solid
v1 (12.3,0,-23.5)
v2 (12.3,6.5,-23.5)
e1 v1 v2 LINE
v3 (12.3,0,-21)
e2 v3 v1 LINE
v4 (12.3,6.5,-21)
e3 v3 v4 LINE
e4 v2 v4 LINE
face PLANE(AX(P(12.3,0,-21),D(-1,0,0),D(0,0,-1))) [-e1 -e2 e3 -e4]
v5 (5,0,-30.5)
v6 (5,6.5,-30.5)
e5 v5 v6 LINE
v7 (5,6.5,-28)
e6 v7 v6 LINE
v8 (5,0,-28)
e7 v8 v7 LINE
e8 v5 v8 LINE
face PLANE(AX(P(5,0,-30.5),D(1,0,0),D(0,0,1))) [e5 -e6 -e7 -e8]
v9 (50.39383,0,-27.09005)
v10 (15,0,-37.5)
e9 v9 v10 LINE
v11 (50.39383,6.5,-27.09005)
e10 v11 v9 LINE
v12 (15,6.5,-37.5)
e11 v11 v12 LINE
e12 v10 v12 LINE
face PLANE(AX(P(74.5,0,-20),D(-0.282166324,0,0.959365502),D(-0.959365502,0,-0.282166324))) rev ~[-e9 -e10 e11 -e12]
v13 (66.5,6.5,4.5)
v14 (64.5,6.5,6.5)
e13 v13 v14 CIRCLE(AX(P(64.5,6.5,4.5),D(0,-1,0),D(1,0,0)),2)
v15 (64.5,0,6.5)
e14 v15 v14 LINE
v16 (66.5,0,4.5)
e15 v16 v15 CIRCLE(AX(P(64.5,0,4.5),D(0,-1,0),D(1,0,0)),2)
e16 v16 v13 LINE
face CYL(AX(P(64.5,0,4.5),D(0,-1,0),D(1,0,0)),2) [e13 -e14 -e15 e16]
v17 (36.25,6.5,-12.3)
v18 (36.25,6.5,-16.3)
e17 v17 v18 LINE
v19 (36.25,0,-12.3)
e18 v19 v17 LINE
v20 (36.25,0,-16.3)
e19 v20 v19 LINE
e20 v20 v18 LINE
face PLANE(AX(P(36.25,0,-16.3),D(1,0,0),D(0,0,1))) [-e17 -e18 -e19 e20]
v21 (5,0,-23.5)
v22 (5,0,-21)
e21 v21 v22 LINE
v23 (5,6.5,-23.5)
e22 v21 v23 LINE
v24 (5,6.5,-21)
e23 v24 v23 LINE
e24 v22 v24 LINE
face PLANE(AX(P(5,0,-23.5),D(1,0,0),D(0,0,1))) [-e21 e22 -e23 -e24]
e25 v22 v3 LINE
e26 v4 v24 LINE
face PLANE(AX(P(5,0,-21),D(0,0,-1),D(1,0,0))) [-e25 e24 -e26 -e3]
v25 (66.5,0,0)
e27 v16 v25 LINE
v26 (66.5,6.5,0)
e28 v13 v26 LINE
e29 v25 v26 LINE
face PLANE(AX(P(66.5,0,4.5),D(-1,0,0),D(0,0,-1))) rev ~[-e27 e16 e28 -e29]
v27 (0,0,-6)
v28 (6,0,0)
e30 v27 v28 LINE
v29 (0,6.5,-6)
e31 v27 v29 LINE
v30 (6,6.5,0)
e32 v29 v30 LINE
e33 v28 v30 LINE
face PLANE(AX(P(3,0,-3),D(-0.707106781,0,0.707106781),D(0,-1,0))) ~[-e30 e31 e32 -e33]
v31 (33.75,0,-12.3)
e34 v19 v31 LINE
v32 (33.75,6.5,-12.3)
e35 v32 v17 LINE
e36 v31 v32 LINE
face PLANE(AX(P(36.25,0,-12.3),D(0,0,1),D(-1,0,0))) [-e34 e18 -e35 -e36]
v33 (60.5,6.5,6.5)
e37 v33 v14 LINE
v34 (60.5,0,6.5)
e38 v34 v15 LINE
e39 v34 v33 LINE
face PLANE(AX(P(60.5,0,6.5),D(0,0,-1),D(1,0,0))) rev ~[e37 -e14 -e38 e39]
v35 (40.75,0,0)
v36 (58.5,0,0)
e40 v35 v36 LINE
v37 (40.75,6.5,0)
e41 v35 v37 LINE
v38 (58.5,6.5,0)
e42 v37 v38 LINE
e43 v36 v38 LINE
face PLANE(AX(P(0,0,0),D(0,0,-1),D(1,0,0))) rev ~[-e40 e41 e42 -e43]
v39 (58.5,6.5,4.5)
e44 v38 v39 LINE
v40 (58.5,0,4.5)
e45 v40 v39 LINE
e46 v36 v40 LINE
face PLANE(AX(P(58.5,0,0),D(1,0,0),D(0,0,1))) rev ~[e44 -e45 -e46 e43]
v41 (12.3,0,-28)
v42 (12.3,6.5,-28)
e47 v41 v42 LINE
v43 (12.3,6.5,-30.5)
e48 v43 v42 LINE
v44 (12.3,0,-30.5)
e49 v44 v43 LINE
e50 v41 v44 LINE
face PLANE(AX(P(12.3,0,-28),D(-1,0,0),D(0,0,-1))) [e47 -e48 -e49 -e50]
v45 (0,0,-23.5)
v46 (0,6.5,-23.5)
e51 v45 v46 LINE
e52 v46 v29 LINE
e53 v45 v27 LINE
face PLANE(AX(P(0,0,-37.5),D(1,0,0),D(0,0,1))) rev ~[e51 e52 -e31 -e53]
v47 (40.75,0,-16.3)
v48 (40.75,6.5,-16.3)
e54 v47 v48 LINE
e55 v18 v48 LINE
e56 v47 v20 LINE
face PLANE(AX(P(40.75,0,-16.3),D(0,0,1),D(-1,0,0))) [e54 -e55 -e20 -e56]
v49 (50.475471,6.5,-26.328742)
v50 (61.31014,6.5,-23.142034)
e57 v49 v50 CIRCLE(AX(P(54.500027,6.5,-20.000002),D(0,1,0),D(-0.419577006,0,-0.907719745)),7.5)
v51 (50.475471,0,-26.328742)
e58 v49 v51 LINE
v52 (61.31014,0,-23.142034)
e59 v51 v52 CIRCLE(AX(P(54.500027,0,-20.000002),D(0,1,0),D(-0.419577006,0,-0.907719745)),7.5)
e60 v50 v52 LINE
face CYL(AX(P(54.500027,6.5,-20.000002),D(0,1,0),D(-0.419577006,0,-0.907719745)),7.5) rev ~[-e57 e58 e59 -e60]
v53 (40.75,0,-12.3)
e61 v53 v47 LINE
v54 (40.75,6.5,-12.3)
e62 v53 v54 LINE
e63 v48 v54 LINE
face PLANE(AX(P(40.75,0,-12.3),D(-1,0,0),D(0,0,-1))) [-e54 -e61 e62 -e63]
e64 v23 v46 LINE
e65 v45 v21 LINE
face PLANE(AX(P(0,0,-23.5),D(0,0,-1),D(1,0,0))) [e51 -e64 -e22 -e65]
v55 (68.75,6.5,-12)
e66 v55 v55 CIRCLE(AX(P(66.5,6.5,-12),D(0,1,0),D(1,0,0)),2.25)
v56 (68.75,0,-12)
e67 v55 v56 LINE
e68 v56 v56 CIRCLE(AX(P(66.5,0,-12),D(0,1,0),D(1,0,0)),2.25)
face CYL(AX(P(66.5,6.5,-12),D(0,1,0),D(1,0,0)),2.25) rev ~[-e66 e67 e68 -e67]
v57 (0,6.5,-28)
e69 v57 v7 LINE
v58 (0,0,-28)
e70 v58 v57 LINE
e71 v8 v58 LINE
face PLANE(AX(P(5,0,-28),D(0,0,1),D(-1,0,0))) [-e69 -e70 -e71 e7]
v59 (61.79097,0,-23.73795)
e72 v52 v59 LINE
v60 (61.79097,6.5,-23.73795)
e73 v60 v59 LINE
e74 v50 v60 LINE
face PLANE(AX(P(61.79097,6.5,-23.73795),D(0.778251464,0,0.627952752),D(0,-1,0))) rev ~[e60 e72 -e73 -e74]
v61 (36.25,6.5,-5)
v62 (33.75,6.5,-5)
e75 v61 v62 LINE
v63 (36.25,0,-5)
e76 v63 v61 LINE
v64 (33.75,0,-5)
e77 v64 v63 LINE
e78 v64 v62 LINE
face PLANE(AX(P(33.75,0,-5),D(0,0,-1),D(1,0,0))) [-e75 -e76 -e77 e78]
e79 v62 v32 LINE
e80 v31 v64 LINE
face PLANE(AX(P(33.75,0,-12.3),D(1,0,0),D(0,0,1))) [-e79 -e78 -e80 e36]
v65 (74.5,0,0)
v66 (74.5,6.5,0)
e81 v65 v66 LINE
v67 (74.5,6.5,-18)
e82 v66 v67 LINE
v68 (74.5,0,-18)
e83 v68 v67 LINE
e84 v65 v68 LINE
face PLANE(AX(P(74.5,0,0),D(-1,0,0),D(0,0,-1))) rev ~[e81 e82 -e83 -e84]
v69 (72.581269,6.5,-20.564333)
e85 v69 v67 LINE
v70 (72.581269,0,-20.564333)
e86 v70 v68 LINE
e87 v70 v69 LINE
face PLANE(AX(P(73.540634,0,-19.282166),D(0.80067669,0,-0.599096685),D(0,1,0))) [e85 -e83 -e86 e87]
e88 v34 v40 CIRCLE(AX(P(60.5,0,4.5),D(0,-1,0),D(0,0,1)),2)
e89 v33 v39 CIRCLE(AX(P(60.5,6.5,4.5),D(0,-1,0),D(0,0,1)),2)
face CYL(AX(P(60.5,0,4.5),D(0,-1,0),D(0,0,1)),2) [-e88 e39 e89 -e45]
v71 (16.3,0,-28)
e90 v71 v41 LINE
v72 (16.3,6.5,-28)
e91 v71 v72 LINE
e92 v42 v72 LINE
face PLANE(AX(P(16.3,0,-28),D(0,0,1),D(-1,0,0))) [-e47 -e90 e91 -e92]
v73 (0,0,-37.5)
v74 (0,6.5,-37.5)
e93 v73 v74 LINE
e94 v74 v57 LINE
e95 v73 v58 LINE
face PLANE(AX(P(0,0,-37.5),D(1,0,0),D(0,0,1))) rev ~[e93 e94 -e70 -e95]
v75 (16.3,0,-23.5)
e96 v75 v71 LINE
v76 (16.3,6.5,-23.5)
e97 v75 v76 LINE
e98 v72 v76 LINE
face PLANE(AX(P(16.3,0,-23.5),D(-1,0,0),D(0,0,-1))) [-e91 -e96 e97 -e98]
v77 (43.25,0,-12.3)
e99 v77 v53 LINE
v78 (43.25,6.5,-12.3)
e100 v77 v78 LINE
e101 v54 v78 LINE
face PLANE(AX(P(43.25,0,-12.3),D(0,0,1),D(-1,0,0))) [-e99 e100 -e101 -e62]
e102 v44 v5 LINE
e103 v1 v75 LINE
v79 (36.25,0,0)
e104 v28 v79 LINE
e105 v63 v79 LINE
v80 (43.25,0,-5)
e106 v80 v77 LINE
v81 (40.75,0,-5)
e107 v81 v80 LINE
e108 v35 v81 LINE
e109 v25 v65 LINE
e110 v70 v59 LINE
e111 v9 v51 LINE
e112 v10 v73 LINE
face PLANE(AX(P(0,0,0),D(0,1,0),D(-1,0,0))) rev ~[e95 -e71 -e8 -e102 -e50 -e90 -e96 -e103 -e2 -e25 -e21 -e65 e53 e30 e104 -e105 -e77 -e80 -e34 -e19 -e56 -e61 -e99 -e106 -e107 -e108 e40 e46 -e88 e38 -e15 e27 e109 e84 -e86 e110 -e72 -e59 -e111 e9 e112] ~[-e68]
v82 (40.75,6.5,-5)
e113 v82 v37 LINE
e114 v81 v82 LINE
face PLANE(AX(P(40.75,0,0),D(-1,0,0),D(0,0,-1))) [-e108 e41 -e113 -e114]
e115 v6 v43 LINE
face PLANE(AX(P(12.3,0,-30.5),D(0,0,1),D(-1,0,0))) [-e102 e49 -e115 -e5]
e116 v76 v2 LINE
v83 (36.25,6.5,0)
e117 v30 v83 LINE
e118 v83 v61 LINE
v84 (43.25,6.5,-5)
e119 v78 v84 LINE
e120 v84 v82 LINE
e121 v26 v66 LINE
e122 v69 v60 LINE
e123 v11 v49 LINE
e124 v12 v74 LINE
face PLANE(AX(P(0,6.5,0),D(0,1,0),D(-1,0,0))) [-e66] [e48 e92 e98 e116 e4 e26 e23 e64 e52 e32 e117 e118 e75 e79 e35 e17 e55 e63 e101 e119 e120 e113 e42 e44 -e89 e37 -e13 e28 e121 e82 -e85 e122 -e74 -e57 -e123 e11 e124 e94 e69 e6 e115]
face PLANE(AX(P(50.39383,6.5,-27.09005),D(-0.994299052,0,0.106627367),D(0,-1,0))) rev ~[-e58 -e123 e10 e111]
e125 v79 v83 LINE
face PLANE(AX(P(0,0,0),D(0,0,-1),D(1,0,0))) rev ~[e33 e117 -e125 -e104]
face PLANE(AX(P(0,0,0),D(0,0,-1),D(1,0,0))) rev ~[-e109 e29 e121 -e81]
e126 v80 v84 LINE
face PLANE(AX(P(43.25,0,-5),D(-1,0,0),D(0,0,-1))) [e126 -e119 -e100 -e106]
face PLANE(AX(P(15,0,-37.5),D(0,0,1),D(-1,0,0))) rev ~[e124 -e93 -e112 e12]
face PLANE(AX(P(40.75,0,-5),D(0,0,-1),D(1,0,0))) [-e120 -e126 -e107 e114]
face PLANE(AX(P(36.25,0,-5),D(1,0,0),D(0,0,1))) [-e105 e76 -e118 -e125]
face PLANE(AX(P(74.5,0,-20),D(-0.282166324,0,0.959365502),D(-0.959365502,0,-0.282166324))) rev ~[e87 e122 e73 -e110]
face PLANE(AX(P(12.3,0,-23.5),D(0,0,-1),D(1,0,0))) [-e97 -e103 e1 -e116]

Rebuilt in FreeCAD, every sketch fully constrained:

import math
import FreeCAD as App
import Part
import Sketcher

V = App.Vector
Q = App.Units.Quantity


def edges_at(feature, points):
    """Names of the edges that pass closest to the given points."""
    edges = feature.Shape.Edges
    near = lambda p: min(range(len(edges)), key=lambda i: edges[i].distToShape(Part.Vertex(*p))[0])
    return sorted({f"Edge{near(p) + 1}" for p in points})


def add_polygon(sketch, points):
    """Adds a closed chain of lines whose ends are joined by coincident constraints."""
    first, n = sketch.GeometryCount, len(points)
    for a, b in zip(points, points[1:] + points[:1]):
        sketch.addGeometry(Part.LineSegment(App.Vector(*a, 0), App.Vector(*b, 0)), False)
    for i in range(n):
        sketch.addConstraint(Sketcher.Constraint("Coincident", first + i, 2, first + (i + 1) % n, 1))

doc = App.newDocument("Part")
params = doc.addObject("Spreadsheet::Sheet", "Params")
for row, (alias, value) in enumerate([
    ("sketch1_width", "15 mm"),
    ("sketch1_height", "20 mm"),
    ("sketch1_width2", "74.5 mm"),
    ("sketch1_height2", "37.5 mm"),
    ("pad1_length", "6.5 mm"),
    ("sketch2_width", "5 mm"),
    ("sketch2_width2", "4 mm"),
    ("sketch2_width3", "7.3 mm"),
    ("sketch2_height", "4.5 mm"),
    ("sketch2_height2", "2.5 mm"),
    ("sketch3_radius", "2 mm"),
    ("sketch3_width", "8 mm"),
    ("pad2_length", "6.5 mm"),
    ("sketch4_height", "5 mm"),
    ("sketch4_height2", "4 mm"),
    ("sketch4_width", "4.5 mm"),
    ("sketch4_width2", "2.5 mm"),
    ("sketch4_height3", "7.3 mm"),
    ("sketch5_radius", "7.5 mm"),
    ("chamfer_size", "1 mm"),
    ("chamfer2_size", "2 mm"),
    ("chamfer3_size", "6 mm"),
    ("sketch6_diameter", "4.5 mm"),
], start=1):
    params.set(f"A{row}", alias)
    params.set(f"B{row}", "=" + value)
    params.setAlias(f"B{row}", alias)

body = doc.addObject("PartDesign::Body", "Body")

# Sketch on XZ plane
sketch1 = doc.addObject("Sketcher::SketchObject", "Sketch")
body.addObject(sketch1)
sketch1.AttachmentSupport = (doc.XZ_Plane, [""])
sketch1.MapMode = "FlatFace"
add_polygon(sketch1, [(15, -38), (0, -38), (0, 0), (74, 0), (74, -20)])  # lines 0-4
sketch1.addConstraint(Sketcher.Constraint("Horizontal", 0))
sketch1.addConstraint(Sketcher.Constraint("Vertical", 1))
sketch1.addConstraint(Sketcher.Constraint("Horizontal", 2))
sketch1.addConstraint(Sketcher.Constraint("Vertical", 3))
sketch1.addConstraint(Sketcher.Constraint("Coincident", 1, 2, -1, 1))
sketch1.addConstraint(Sketcher.Constraint("DistanceX", 0, 2, 0, 1, 15.0))
sketch1.addConstraint(Sketcher.Constraint("DistanceY", 3, 2, 3, 1, 20.0))
sketch1.addConstraint(Sketcher.Constraint("DistanceX", 2, 1, 2, 2, 74.5))
sketch1.addConstraint(Sketcher.Constraint("DistanceY", 1, 1, 1, 2, 37.5))
sketch1.setExpression("Constraints[10]", "Params.sketch1_width")
sketch1.setExpression("Constraints[11]", "Params.sketch1_height")
sketch1.setExpression("Constraints[12]", "Params.sketch1_width2")
sketch1.setExpression("Constraints[13]", "Params.sketch1_height2")
pad1 = doc.addObject("PartDesign::Pad", "Pad")
body.addObject(pad1)
pad1.Profile = sketch1
pad1.setExpression("Length", "Params.pad1_length")
pad1.Reversed = True

# Sketch on XZ plane
sketch2 = doc.addObject("Sketcher::SketchObject", "Sketch001")
body.addObject(sketch2)
sketch2.AttachmentSupport = (doc.XZ_Plane, [""])
sketch2.MapMode = "FlatFace"
add_polygon(sketch2, [(5, -23.5), (0, -23.5), (0, -28), (5, -28), (5, -30.5), (12.3, -30.5), (12.3, -28), (16.3, -28), (16.3, -23.5), (12.3, -23.5), (12.3, -21), (5, -21)])  # lines 0-11
sketch2.addConstraint(Sketcher.Constraint("Horizontal", 0))
sketch2.addConstraint(Sketcher.Constraint("Vertical", 1))
sketch2.addConstraint(Sketcher.Constraint("Horizontal", 2))
sketch2.addConstraint(Sketcher.Constraint("Vertical", 3))
sketch2.addConstraint(Sketcher.Constraint("Horizontal", 4))
sketch2.addConstraint(Sketcher.Constraint("Vertical", 5))
sketch2.addConstraint(Sketcher.Constraint("Horizontal", 6))
sketch2.addConstraint(Sketcher.Constraint("Vertical", 7))
sketch2.addConstraint(Sketcher.Constraint("Horizontal", 8))
sketch2.addConstraint(Sketcher.Constraint("Vertical", 9))
sketch2.addConstraint(Sketcher.Constraint("Horizontal", 10))
sketch2.addConstraint(Sketcher.Constraint("Vertical", 11))
sketch2.addConstraint(Sketcher.Constraint("PointOnObject", 0, 2, -2))
sketch2.addConstraint(Sketcher.Constraint("Horizontal", 2, 2, 5, 2))
sketch2.addConstraint(Sketcher.Constraint("Horizontal", 0, 2, 7, 2))
sketch2.addConstraint(Sketcher.Constraint("Vertical", 5, 2, 8, 2))
sketch2.addConstraint(Sketcher.Constraint("Vertical", 3, 2, 10, 2))
sketch2.addConstraint(Sketcher.Constraint("Equal", 5, 9))
sketch2.addConstraint(Sketcher.Constraint("DistanceX", 0, 2, 0, 1, 5.0))
sketch2.addConstraint(Sketcher.Constraint("DistanceX", 6, 1, 6, 2, 4.0))
sketch2.addConstraint(Sketcher.Constraint("DistanceX", 4, 1, 4, 2, 7.3))
sketch2.addConstraint(Sketcher.Constraint("DistanceY", 1, 2, 1, 1, 4.5))
sketch2.addConstraint(Sketcher.Constraint("DistanceY", 3, 2, 3, 1, 2.5))
sketch2.addConstraint(Sketcher.Constraint("DistanceY", 1, 2, -1, 1, 28.0))
sketch2.setExpression("Constraints[30]", "Params.sketch2_width")
sketch2.setExpression("Constraints[31]", "Params.sketch2_width2")
sketch2.setExpression("Constraints[32]", "Params.sketch2_width3")
sketch2.setExpression("Constraints[33]", "Params.sketch2_height")
sketch2.setExpression("Constraints[34]", "Params.sketch2_height2")
pocket1 = doc.addObject("PartDesign::Pocket", "Pocket")
body.addObject(pocket1)
pocket1.Profile = sketch2
pocket1.Type = "ThroughAll"

# Sketch on XZ plane
sketch3 = doc.addObject("Sketcher::SketchObject", "Sketch002")
body.addObject(sketch3)
sketch3.AttachmentSupport = (doc.XZ_Plane, [""])
sketch3.MapMode = "FlatFace"
sketch3.addGeometry(Part.LineSegment(V(58.5, 0, 0), V(66.5, 0, 0)), False)
sketch3.addGeometry(Part.LineSegment(V(66.5, 0, 0), V(66.5, 4.5, 0)), False)
sketch3.addGeometry(Part.ArcOfCircle(Part.Circle(V(64.5, 4.5, 0), V(0, 0, 1), 2), math.radians(0), math.radians(90)), False)
sketch3.addGeometry(Part.LineSegment(V(64.5, 6.5, 0), V(60.5, 6.5, 0)), False)
sketch3.addGeometry(Part.ArcOfCircle(Part.Circle(V(60.5, 4.5, 0), V(0, 0, 1), 2), math.radians(90), math.radians(180)), False)
sketch3.addGeometry(Part.LineSegment(V(58.5, 4.5, 0), V(58.5, 0, 0)), False)
sketch3.addConstraint(Sketcher.Constraint("Coincident", 0, 2, 1, 1))
sketch3.addConstraint(Sketcher.Constraint("Tangent", 1, 2, 2, 1))
sketch3.addConstraint(Sketcher.Constraint("Tangent", 2, 2, 3, 1))
sketch3.addConstraint(Sketcher.Constraint("Tangent", 3, 2, 4, 1))
sketch3.addConstraint(Sketcher.Constraint("Tangent", 4, 2, 5, 1))
sketch3.addConstraint(Sketcher.Constraint("Coincident", 5, 2, 0, 1))
sketch3.addConstraint(Sketcher.Constraint("Horizontal", 0))
sketch3.addConstraint(Sketcher.Constraint("Vertical", 1))
sketch3.addConstraint(Sketcher.Constraint("Horizontal", 3))
sketch3.addConstraint(Sketcher.Constraint("Vertical", 5))
sketch3.addConstraint(Sketcher.Constraint("Equal", 2, 4))
sketch3.addConstraint(Sketcher.Constraint("PointOnObject", 0, 2, -1))
sketch3.addConstraint(Sketcher.Constraint("Radius", 2, 2.0))
sketch3.addConstraint(Sketcher.Constraint("DistanceX", 0, 1, 0, 2, 8.0))
sketch3.addConstraint(Sketcher.Constraint("DistanceY", -1, 1, 2, 2, 6.5))
sketch3.addConstraint(Sketcher.Constraint("DistanceX", -1, 1, 2, 3, 64.5))
sketch3.setExpression("Constraints[12]", "Params.sketch3_radius")
sketch3.setExpression("Constraints[13]", "Params.sketch3_width")
pad2 = doc.addObject("PartDesign::Pad", "Pad001")
body.addObject(pad2)
pad2.Profile = sketch3
pad2.setExpression("Length", "Params.pad2_length")
pad2.Reversed = True

# Sketch on XZ plane
sketch4 = doc.addObject("Sketcher::SketchObject", "Sketch003")
body.addObject(sketch4)
sketch4.AttachmentSupport = (doc.XZ_Plane, [""])
sketch4.MapMode = "FlatFace"
add_polygon(sketch4, [(40.8, -5), (40.8, 0), (36.2, 0), (36.2, -5), (33.8, -5), (33.8, -12.3), (36.2, -12.3), (36.2, -16.3), (40.8, -16.3), (40.8, -12.3), (43.2, -12.3), (43.2, -5)])  # lines 0-11
sketch4.addConstraint(Sketcher.Constraint("Vertical", 0))
sketch4.addConstraint(Sketcher.Constraint("Horizontal", 1))
sketch4.addConstraint(Sketcher.Constraint("Vertical", 2))
sketch4.addConstraint(Sketcher.Constraint("Horizontal", 3))
sketch4.addConstraint(Sketcher.Constraint("Vertical", 4))
sketch4.addConstraint(Sketcher.Constraint("Horizontal", 5))
sketch4.addConstraint(Sketcher.Constraint("Vertical", 6))
sketch4.addConstraint(Sketcher.Constraint("Horizontal", 7))
sketch4.addConstraint(Sketcher.Constraint("Vertical", 8))
sketch4.addConstraint(Sketcher.Constraint("Horizontal", 9))
sketch4.addConstraint(Sketcher.Constraint("Vertical", 10))
sketch4.addConstraint(Sketcher.Constraint("Horizontal", 11))
sketch4.addConstraint(Sketcher.Constraint("PointOnObject", 0, 2, -1))
sketch4.addConstraint(Sketcher.Constraint("Horizontal", 5, 2, 8, 2))
sketch4.addConstraint(Sketcher.Constraint("Horizontal", 3, 2, 10, 2))
sketch4.addConstraint(Sketcher.Constraint("Vertical", 2, 2, 5, 2))
sketch4.addConstraint(Sketcher.Constraint("Vertical", 0, 2, 7, 2))
sketch4.addConstraint(Sketcher.Constraint("Equal", 5, 9))
sketch4.addConstraint(Sketcher.Constraint("DistanceY", 0, 1, 0, 2, 5.0))
sketch4.addConstraint(Sketcher.Constraint("DistanceY", 6, 2, 6, 1, 4.0))
sketch4.addConstraint(Sketcher.Constraint("DistanceX", 1, 2, 1, 1, 4.5))
sketch4.addConstraint(Sketcher.Constraint("DistanceX", 3, 2, 3, 1, 2.5))
sketch4.addConstraint(Sketcher.Constraint("DistanceY", 4, 2, 4, 1, 7.3))
sketch4.addConstraint(Sketcher.Constraint("DistanceX", -1, 1, 0, 2, 40.75))
sketch4.setExpression("Constraints[30]", "Params.sketch4_height")
sketch4.setExpression("Constraints[31]", "Params.sketch4_height2")
sketch4.setExpression("Constraints[32]", "Params.sketch4_width")
sketch4.setExpression("Constraints[33]", "Params.sketch4_width2")
sketch4.setExpression("Constraints[34]", "Params.sketch4_height3")
pocket2 = doc.addObject("PartDesign::Pocket", "Pocket001")
body.addObject(pocket2)
pocket2.Profile = sketch4
pocket2.Type = "ThroughAll"

# Sketch on XZ plane
sketch5 = doc.addObject("Sketcher::SketchObject", "Sketch004")
body.addObject(sketch5)
sketch5.AttachmentSupport = (doc.XZ_Plane, [""])
sketch5.MapMode = "FlatFace"
sketch5.AttachmentOffset = App.Placement(V(0, 0, -6.5), App.Rotation())
sketch5.addGeometry(Part.ArcOfCircle(Part.Circle(V(54, -20, 0), V(0, 0, 1), 7), math.radians(-32), math.radians(245)), False)
sketch5.addGeometry(Part.LineSegment(V(51, -27, 0), V(61, -24, 0)), False)
sketch5.addConstraint(Sketcher.Constraint("Coincident", 0, 1, 1, 2))
sketch5.addConstraint(Sketcher.Constraint("Coincident", 1, 1, 0, 2))
sketch5.addConstraint(Sketcher.Constraint("Radius", 0, 7.5))
sketch5.addConstraint(Sketcher.Constraint("DistanceY", 0, 3, -1, 1, 20.0))
sketch5.addConstraint(Sketcher.Constraint("DistanceX", -1, 1, 0, 3, 54.5))
sketch5.addConstraint(Sketcher.Constraint("Angle", 1, Q("16.3895 deg")))
sketch5.addConstraint(Sketcher.Constraint("DistanceY", 0, 1, -1, 1, 24.02))
sketch5.setExpression("Constraints[2]", "Params.sketch5_radius")
pocket3 = doc.addObject("PartDesign::Pocket", "Pocket002")
body.addObject(pocket3)
pocket3.Profile = sketch5
pocket3.Type = "ThroughAll"
pocket3.Reversed = True
doc.recompute()

chamfer = doc.addObject("PartDesign::Chamfer", "Chamfer")
body.addObject(chamfer)
chamfer.Base = (pocket3, edges_at(pocket3, [(51.353, 3.25, -26.808), (60.832, 3.25, -24.02)]))
chamfer.setExpression("Size", "Params.chamfer_size")
doc.recompute()

chamfer2 = doc.addObject("PartDesign::Chamfer", "Chamfer001")
body.addObject(chamfer2)
chamfer2.Base = (chamfer, edges_at(chamfer, [(74.5, 3.25, -20)]))
chamfer2.setExpression("Size", "Params.chamfer2_size")
doc.recompute()

chamfer3 = doc.addObject("PartDesign::Chamfer", "Chamfer002")
body.addObject(chamfer3)
chamfer3.Base = (chamfer2, edges_at(chamfer2, [(0, 3.25, 0)]))
chamfer3.setExpression("Size", "Params.chamfer3_size")

# Sketch on XZ plane
sketch6 = doc.addObject("Sketcher::SketchObject", "Sketch005")
body.addObject(sketch6)
sketch6.AttachmentSupport = (doc.XZ_Plane, [""])
sketch6.MapMode = "FlatFace"
sketch6.AttachmentOffset = App.Placement(V(0, 0, -6.5), App.Rotation())
sketch6.addGeometry(Part.Circle(V(66.5, -12, 0), V(0, 0, 1), 2.2), False)
sketch6.addConstraint(Sketcher.Constraint("Diameter", 0, 4.5))
sketch6.addConstraint(Sketcher.Constraint("DistanceY", 0, 3, -1, 1, 12.0))
sketch6.addConstraint(Sketcher.Constraint("DistanceX", -1, 1, 0, 3, 66.5))
sketch6.setExpression("Constraints[0]", "Params.sketch6_diameter")
pocket4 = doc.addObject("PartDesign::Pocket", "Pocket003")
body.addObject(pocket4)
pocket4.Profile = sketch6
pocket4.Type = "ThroughAll"
pocket4.Reversed = True

doc.recompute()
